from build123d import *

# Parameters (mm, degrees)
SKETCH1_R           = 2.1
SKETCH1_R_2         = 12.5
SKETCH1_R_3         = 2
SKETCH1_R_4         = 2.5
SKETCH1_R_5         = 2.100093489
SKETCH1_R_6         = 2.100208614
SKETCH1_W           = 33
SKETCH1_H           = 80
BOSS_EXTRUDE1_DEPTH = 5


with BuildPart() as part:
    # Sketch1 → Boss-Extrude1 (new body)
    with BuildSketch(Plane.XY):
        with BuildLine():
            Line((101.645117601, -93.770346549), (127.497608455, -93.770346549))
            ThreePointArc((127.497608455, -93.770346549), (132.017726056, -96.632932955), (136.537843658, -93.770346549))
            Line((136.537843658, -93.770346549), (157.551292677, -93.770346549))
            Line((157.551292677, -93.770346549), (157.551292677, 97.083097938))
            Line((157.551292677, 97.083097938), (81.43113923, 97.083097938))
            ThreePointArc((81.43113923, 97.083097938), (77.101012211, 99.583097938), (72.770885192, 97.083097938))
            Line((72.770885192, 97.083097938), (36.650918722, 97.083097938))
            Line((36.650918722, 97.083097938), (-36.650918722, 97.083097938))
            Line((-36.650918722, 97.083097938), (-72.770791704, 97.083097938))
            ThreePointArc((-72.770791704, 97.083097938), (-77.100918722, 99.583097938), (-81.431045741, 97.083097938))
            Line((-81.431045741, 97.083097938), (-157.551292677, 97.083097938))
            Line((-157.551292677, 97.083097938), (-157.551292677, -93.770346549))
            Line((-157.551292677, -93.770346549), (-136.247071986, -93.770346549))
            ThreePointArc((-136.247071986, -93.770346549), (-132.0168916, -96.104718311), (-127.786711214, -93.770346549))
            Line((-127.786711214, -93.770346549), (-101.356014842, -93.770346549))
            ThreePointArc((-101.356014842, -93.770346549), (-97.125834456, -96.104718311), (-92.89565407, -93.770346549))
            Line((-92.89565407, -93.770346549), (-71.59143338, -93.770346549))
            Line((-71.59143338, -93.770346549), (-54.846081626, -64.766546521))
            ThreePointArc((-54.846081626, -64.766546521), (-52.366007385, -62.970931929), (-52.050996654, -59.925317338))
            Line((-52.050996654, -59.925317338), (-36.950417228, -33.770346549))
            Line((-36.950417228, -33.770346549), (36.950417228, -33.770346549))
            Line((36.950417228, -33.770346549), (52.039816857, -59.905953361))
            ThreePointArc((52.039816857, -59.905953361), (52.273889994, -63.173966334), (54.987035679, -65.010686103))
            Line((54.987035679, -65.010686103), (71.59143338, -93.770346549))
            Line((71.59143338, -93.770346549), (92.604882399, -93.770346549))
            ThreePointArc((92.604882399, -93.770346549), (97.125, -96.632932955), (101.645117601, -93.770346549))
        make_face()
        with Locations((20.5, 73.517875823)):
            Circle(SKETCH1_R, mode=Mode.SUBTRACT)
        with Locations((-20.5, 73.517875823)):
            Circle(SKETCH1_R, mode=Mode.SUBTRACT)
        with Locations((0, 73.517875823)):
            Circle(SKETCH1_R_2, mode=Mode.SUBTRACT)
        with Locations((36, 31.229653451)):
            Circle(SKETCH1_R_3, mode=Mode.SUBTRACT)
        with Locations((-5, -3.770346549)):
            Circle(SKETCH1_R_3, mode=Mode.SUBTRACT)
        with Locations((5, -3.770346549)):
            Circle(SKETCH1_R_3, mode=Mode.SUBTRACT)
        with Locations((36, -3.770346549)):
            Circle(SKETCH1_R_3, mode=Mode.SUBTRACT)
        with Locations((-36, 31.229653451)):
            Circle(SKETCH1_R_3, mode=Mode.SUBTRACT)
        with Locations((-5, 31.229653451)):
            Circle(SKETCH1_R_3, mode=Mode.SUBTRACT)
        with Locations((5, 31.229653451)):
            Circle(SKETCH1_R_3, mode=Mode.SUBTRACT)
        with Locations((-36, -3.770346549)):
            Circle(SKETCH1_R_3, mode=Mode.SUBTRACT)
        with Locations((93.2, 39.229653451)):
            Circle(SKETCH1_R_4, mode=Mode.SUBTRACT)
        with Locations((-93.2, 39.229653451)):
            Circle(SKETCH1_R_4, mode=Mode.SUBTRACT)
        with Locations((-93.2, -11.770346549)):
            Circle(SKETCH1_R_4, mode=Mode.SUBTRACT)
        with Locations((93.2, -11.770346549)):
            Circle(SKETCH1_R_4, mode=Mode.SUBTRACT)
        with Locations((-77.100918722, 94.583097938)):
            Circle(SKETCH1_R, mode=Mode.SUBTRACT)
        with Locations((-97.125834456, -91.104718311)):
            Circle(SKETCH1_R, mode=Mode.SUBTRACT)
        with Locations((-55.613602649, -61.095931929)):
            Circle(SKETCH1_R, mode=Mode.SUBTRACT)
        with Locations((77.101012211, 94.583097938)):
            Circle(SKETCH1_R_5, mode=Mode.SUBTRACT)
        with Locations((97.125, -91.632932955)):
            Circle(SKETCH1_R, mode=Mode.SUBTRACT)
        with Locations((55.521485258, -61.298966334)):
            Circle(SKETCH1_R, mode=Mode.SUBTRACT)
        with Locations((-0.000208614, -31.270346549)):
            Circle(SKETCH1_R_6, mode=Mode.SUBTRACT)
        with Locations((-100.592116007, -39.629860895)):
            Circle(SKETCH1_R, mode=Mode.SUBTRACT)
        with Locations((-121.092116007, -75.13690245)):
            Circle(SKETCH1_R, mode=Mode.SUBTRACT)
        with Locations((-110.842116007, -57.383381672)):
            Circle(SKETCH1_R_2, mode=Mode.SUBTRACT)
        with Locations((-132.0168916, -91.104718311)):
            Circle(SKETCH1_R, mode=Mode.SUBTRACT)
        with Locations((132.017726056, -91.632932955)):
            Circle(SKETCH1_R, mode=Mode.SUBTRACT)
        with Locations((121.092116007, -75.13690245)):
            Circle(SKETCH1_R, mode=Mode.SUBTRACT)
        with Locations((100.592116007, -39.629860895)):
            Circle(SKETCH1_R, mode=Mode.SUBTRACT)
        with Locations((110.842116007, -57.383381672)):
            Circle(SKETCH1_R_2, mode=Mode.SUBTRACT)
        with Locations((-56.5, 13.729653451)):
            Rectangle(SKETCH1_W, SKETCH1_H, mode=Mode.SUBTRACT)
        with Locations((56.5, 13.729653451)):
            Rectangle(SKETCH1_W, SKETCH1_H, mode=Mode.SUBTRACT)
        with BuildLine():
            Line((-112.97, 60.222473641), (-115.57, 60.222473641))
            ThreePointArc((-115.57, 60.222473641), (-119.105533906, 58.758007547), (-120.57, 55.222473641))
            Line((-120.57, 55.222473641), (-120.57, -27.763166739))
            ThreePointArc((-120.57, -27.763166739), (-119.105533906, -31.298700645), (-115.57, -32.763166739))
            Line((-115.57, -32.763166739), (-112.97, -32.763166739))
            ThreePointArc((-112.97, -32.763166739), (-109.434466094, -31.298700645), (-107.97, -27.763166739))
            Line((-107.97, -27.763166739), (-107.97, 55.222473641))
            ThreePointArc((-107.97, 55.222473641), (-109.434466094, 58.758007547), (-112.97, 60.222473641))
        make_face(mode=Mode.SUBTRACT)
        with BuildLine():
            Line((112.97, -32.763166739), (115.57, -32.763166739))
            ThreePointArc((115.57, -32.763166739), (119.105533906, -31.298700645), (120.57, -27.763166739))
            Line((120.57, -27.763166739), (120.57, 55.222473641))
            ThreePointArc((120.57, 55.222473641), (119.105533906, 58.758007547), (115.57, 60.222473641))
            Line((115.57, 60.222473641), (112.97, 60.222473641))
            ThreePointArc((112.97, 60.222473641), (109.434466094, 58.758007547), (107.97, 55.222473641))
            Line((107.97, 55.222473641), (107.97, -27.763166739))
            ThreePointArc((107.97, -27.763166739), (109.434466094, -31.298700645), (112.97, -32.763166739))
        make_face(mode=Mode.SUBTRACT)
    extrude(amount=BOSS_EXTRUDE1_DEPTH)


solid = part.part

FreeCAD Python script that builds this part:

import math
import FreeCAD as App
import Part
import Sketcher
Q = App.Units.Quantity


def add_polygon(sketch, points):
    """Adds a closed chain of lines whose ends are joined by coincident constraints."""
    first, n = sketch.GeometryCount, len(points)
    for a, b in zip(points, points[1:] + points[:1]):
        sketch.addGeometry(Part.LineSegment(App.Vector(*a, 0), App.Vector(*b, 0)), False)
    for i in range(n):
        sketch.addConstraint(Sketcher.Constraint("Coincident", first + i, 2, first + (i + 1) % n, 1))

doc = App.newDocument("Part")
body = doc.addObject("PartDesign::Body", "Body")

# Sketch on XY plane
sketch1 = body.newObject("Sketcher::SketchObject", "Sketch")
sketch1.AttachmentSupport = (doc.getObject("XY_Plane"), [""])
sketch1.MapMode = "FlatFace"
sketch1.addGeometry(Part.LineSegment(App.Vector(101.645118, -93.770347, 0), App.Vector(127.497608, -93.770347, 0)), False)  # 0
sketch1.addGeometry(Part.ArcOfCircle(Part.Circle(App.Vector(132.017726, -91.632933, 0), App.Vector(0, 0, 1), 5), math.radians(-154.692087), math.radians(-25.307913)), False)  # 1
sketch1.addGeometry(Part.LineSegment(App.Vector(136.537844, -93.770347, 0), App.Vector(157.551293, -93.770347, 0)), False)  # 2
sketch1.addGeometry(Part.LineSegment(App.Vector(157.551293, -93.770347, 0), App.Vector(157.551293, 97.083098, 0)), False)  # 3
sketch1.addGeometry(Part.LineSegment(App.Vector(157.551293, 97.083098, 0), App.Vector(81.431139, 97.083098, 0)), False)  # 4
sketch1.addGeometry(Part.ArcOfCircle(Part.Circle(App.Vector(77.101012, 94.583098, 0), App.Vector(0, 0, 1), 5), math.radians(30), math.radians(150)), False)  # 5
sketch1.addGeometry(Part.LineSegment(App.Vector(72.770885, 97.083098, 0), App.Vector(-72.770792, 97.083098, 0)), False)  # 6
sketch1.addGeometry(Part.ArcOfCircle(Part.Circle(App.Vector(-77.100919, 94.583098, 0), App.Vector(0, 0, 1), 5), math.radians(30), math.radians(150)), False)  # 7
sketch1.addGeometry(Part.LineSegment(App.Vector(-81.431046, 97.083098, 0), App.Vector(-157.551293, 97.083098, 0)), False)  # 8
sketch1.addGeometry(Part.LineSegment(App.Vector(-157.551293, 97.083098, 0), App.Vector(-157.551293, -93.770347, 0)), False)  # 9
sketch1.addGeometry(Part.LineSegment(App.Vector(-157.551293, -93.770347, 0), App.Vector(-136.247072, -93.770347, 0)), False)  # 10
sketch1.addGeometry(Part.ArcOfCircle(Part.Circle(App.Vector(-132.016892, -91.104718, 0), App.Vector(0, 0, 1), 5), math.radians(-147.783113), math.radians(-32.216887)), False)  # 11
sketch1.addGeometry(Part.LineSegment(App.Vector(-127.786711, -93.770347, 0), App.Vector(-101.356015, -93.770347, 0)), False)  # 12
sketch1.addGeometry(Part.ArcOfCircle(Part.Circle(App.Vector(-97.125834, -91.104718, 0), App.Vector(0, 0, 1), 5), math.radians(-147.783113), math.radians(-32.216887)), False)  # 13
sketch1.addGeometry(Part.LineSegment(App.Vector(-92.895654, -93.770347, 0), App.Vector(-71.591433, -93.770347, 0)), False)  # 14
sketch1.addGeometry(Part.LineSegment(App.Vector(-71.591433, -93.770347, 0), App.Vector(-54.846082, -64.766547, 0)), False)  # 15
sketch1.addGeometry(Part.ArcOfCircle(Part.Circle(App.Vector(-55.613603, -61.095932, 0), App.Vector(0, 0, 1), 3.75), math.radians(-78.189685), math.radians(18.189685)), False)  # 16
sketch1.addGeometry(Part.LineSegment(App.Vector(-52.050997, -59.925317, 0), App.Vector(-36.950417, -33.770347, 0)), False)  # 17
sketch1.addGeometry(Part.LineSegment(App.Vector(-36.950417, -33.770347, 0), App.Vector(36.950417, -33.770347, 0)), False)  # 18
sketch1.addGeometry(Part.LineSegment(App.Vector(36.950417, -33.770347, 0), App.Vector(52.039817, -59.905953, 0)), False)  # 19
sketch1.addGeometry(Part.ArcOfCircle(Part.Circle(App.Vector(55.521485, -61.298966, 0), App.Vector(0, 0, 1), 3.75), math.radians(158.193688), math.radians(261.806312)), False)  # 20
sketch1.addGeometry(Part.LineSegment(App.Vector(54.987036, -65.010686, 0), App.Vector(71.591433, -93.770347, 0)), False)  # 21
sketch1.addGeometry(Part.LineSegment(App.Vector(71.591433, -93.770347, 0), App.Vector(92.604882, -93.770347, 0)), False)  # 22
sketch1.addGeometry(Part.ArcOfCircle(Part.Circle(App.Vector(97.125, -91.632933, 0), App.Vector(0, 0, 1), 5), math.radians(-154.692087), math.radians(-25.307913)), False)  # 23
sketch1.addGeometry(Part.Circle(App.Vector(-132.016892, -91.104718, 0), App.Vector(0, 0, 1), 2.1), False)  # 24
sketch1.addGeometry(Part.Circle(App.Vector(-121.092116, -75.136902, 0), App.Vector(0, 0, 1), 2.1), False)  # 25
sketch1.addGeometry(Part.Circle(App.Vector(-97.125834, -91.104718, 0), App.Vector(0, 0, 1), 2.1), False)  # 26
sketch1.addGeometry(Part.Circle(App.Vector(-110.842116, -57.383382, 0), App.Vector(0, 0, 1), 12.5), False)  # 27
sketch1.addGeometry(Part.Circle(App.Vector(-55.613603, -61.095932, 0), App.Vector(0, 0, 1), 2.1), False)  # 28
sketch1.addGeometry(Part.Circle(App.Vector(-100.592116, -39.629861, 0), App.Vector(0, 0, 1), 2.1), False)  # 29
sketch1.addGeometry(Part.Circle(App.Vector(-93.2, -11.770347, 0), App.Vector(0, 0, 1), 2.5), False)  # 30
sketch1.addGeometry(Part.Circle(App.Vector(-0.000209, -31.270347, 0), App.Vector(0, 0, 1), 2.100209), False)  # 31
sketch1.addGeometry(Part.Circle(App.Vector(-36, -3.770347, 0), App.Vector(0, 0, 1), 2), False)  # 32
sketch1.addGeometry(Part.Circle(App.Vector(-5, -3.770347, 0), App.Vector(0, 0, 1), 2), False)  # 33
sketch1.addGeometry(Part.Circle(App.Vector(55.521485, -61.298966, 0), App.Vector(0, 0, 1), 2.1), False)  # 34
sketch1.addGeometry(Part.Circle(App.Vector(97.125, -91.632933, 0), App.Vector(0, 0, 1), 2.1), False)  # 35
sketch1.addGeometry(Part.Circle(App.Vector(132.017726, -91.632933, 0), App.Vector(0, 0, 1), 2.1), False)  # 36
sketch1.addGeometry(Part.Circle(App.Vector(121.092116, -75.136902, 0), App.Vector(0, 0, 1), 2.1), False)  # 37
sketch1.addGeometry(Part.Circle(App.Vector(110.842116, -57.383382, 0), App.Vector(0, 0, 1), 12.5), False)  # 38
sketch1.addGeometry(Part.Circle(App.Vector(5, -3.770347, 0), App.Vector(0, 0, 1), 2), False)  # 39
sketch1.addGeometry(Part.Circle(App.Vector(36, -3.770347, 0), App.Vector(0, 0, 1), 2), False)  # 40
sketch1.addGeometry(Part.Circle(App.Vector(100.592116, -39.629861, 0), App.Vector(0, 0, 1), 2.1), False)  # 41
sketch1.addGeometry(Part.Circle(App.Vector(93.2, -11.770347, 0), App.Vector(0, 0, 1), 2.5), False)  # 42
sketch1.addGeometry(Part.LineSegment(App.Vector(-115.57, 60.222474, 0), App.Vector(-112.97, 60.222474, 0)), False)  # 43
sketch1.addGeometry(Part.ArcOfCircle(Part.Circle(App.Vector(-112.97, 55.222474, 0), App.Vector(0, 0, 1), 5), math.radians(0), math.radians(90)), False)  # 44
sketch1.addGeometry(Part.LineSegment(App.Vector(-107.97, 55.222474, 0), App.Vector(-107.97, -27.763167, 0)), False)  # 45
sketch1.addGeometry(Part.ArcOfCircle(Part.Circle(App.Vector(-112.97, -27.763167, 0), App.Vector(0, 0, 1), 5), math.radians(-90), math.radians(0)), False)  # 46
sketch1.addGeometry(Part.LineSegment(App.Vector(-112.97, -32.763167, 0), App.Vector(-115.57, -32.763167, 0)), False)  # 47
sketch1.addGeometry(Part.ArcOfCircle(Part.Circle(App.Vector(-115.57, -27.763167, 0), App.Vector(0, 0, 1), 5), math.radians(180), math.radians(270)), False)  # 48
sketch1.addGeometry(Part.LineSegment(App.Vector(-120.57, -27.763167, 0), App.Vector(-120.57, 55.222474, 0)), False)  # 49
sketch1.addGeometry(Part.ArcOfCircle(Part.Circle(App.Vector(-115.57, 55.222474, 0), App.Vector(0, 0, 1), 5), math.radians(90), math.radians(180)), False)  # 50
sketch1.addGeometry(Part.Circle(App.Vector(-93.2, 39.229653, 0), App.Vector(0, 0, 1), 2.5), False)  # 51
add_polygon(sketch1, [(-40, -26.270347), (-73, -26.270347), (-73, 53.729653), (-40, 53.729653)])  # lines 52-55
sketch1.addGeometry(Part.Circle(App.Vector(-36, 31.229653, 0), App.Vector(0, 0, 1), 2), False)  # 56
sketch1.addGeometry(Part.Circle(App.Vector(-5, 31.229653, 0), App.Vector(0, 0, 1), 2), False)  # 57
sketch1.addGeometry(Part.Circle(App.Vector(-77.100919, 94.583098, 0), App.Vector(0, 0, 1), 2.1), False)  # 58
sketch1.addGeometry(Part.Circle(App.Vector(-20.5, 73.517876, 0), App.Vector(0, 0, 1), 2.1), False)  # 59
sketch1.addGeometry(Part.Circle(App.Vector(0, 73.517876, 0), App.Vector(0, 0, 1), 12.5), False)  # 60
add_polygon(sketch1, [(73, -26.270347), (40, -26.270347), (40, 53.729653), (73, 53.729653)])  # lines 61-64
sketch1.addGeometry(Part.Circle(App.Vector(5, 31.229653, 0), App.Vector(0, 0, 1), 2), False)  # 65
sketch1.addGeometry(Part.Circle(App.Vector(36, 31.229653, 0), App.Vector(0, 0, 1), 2), False)  # 66
sketch1.addGeometry(Part.LineSegment(App.Vector(115.57, -32.763167, 0), App.Vector(112.97, -32.763167, 0)), False)  # 67
sketch1.addGeometry(Part.ArcOfCircle(Part.Circle(App.Vector(112.97, -27.763167, 0), App.Vector(0, 0, 1), 5), math.radians(180), math.radians(270)), False)  # 68
sketch1.addGeometry(Part.LineSegment(App.Vector(107.97, -27.763167, 0), App.Vector(107.97, 55.222474, 0)), False)  # 69
sketch1.addGeometry(Part.ArcOfCircle(Part.Circle(App.Vector(112.97, 55.222474, 0), App.Vector(0, 0, 1), 5), math.radians(90), math.radians(180)), False)  # 70
sketch1.addGeometry(Part.LineSegment(App.Vector(112.97, 60.222474, 0), App.Vector(115.57, 60.222474, 0)), False)  # 71
sketch1.addGeometry(Part.ArcOfCircle(Part.Circle(App.Vector(115.57, 55.222474, 0), App.Vector(0, 0, 1), 5), math.radians(0), math.radians(90)), False)  # 72
sketch1.addGeometry(Part.LineSegment(App.Vector(120.57, 55.222474, 0), App.Vector(120.57, -27.763167, 0)), False)  # 73
sketch1.addGeometry(Part.ArcOfCircle(Part.Circle(App.Vector(115.57, -27.763167, 0), App.Vector(0, 0, 1), 5), math.radians(-90), math.radians(0)), False)  # 74
sketch1.addGeometry(Part.Circle(App.Vector(93.2, 39.229653, 0), App.Vector(0, 0, 1), 2.5), False)  # 75
sketch1.addGeometry(Part.Circle(App.Vector(20.5, 73.517876, 0), App.Vector(0, 0, 1), 2.1), False)  # 76
sketch1.addGeometry(Part.Circle(App.Vector(77.101012, 94.583098, 0), App.Vector(0, 0, 1), 2.100093), False)  # 77
sketch1.addConstraint([
    Sketcher.Constraint("Coincident", 0, 2, 1, 1),
    Sketcher.Constraint("Coincident", 1, 2, 2, 1),
    Sketcher.Constraint("Coincident", 2, 2, 3, 1),
    Sketcher.Constraint("Coincident", 3, 2, 4, 1),
    Sketcher.Constraint("Coincident", 4, 2, 5, 1),
    Sketcher.Constraint("Coincident", 5, 2, 6, 1),
    Sketcher.Constraint("Coincident", 6, 2, 7, 1),
    Sketcher.Constraint("Coincident", 7, 2, 8, 1),
    Sketcher.Constraint("Coincident", 8, 2, 9, 1),
    Sketcher.Constraint("Coincident", 9, 2, 10, 1),
    Sketcher.Constraint("Coincident", 10, 2, 11, 1),
    Sketcher.Constraint("Coincident", 11, 2, 12, 1),
    Sketcher.Constraint("Coincident", 12, 2, 13, 1),
    Sketcher.Constraint("Coincident", 13, 2, 14, 1),
    Sketcher.Constraint("Coincident", 14, 2, 15, 1),
    Sketcher.Constraint("Coincident", 15, 2, 16, 1),
    Sketcher.Constraint("Coincident", 16, 2, 17, 1),
    Sketcher.Constraint("Coincident", 17, 2, 18, 1),
    Sketcher.Constraint("Coincident", 18, 2, 19, 1),
    Sketcher.Constraint("Coincident", 19, 2, 20, 1),
    Sketcher.Constraint("Coincident", 20, 2, 21, 1),
    Sketcher.Constraint("Coincident", 21, 2, 22, 1),
    Sketcher.Constraint("Coincident", 22, 2, 23, 1),
    Sketcher.Constraint("Coincident", 23, 2, 0, 1),
    Sketcher.Constraint("Tangent", 43, 2, 44, 2),
    Sketcher.Constraint("Tangent", 44, 1, 45, 1),
    Sketcher.Constraint("Tangent", 45, 2, 46, 2),
    Sketcher.Constraint("Tangent", 46, 1, 47, 1),
    Sketcher.Constraint("Tangent", 47, 2, 48, 2),
    Sketcher.Constraint("Tangent", 48, 1, 49, 1),
    Sketcher.Constraint("Tangent", 49, 2, 50, 2),
    Sketcher.Constraint("Tangent", 50, 1, 43, 1),
    Sketcher.Constraint("Tangent", 67, 2, 68, 2),
    Sketcher.Constraint("Tangent", 68, 1, 69, 1),
    Sketcher.Constraint("Tangent", 69, 2, 70, 2),
    Sketcher.Constraint("Tangent", 70, 1, 71, 1),
    Sketcher.Constraint("Tangent", 71, 2, 72, 2),
    Sketcher.Constraint("Tangent", 72, 1, 73, 1),
    Sketcher.Constraint("Tangent", 73, 2, 74, 2),
    Sketcher.Constraint("Tangent", 74, 1, 67, 1),
    Sketcher.Constraint("Horizontal", 0),
    Sketcher.Constraint("Horizontal", 2),
    Sketcher.Constraint("Vertical", 3),
    Sketcher.Constraint("Horizontal", 4),
    Sketcher.Constraint("Horizontal", 6),
    Sketcher.Constraint("Horizontal", 8),
    Sketcher.Constraint("Vertical", 9),
    Sketcher.Constraint("Horizontal", 10),
    Sketcher.Constraint("Horizontal", 12),
    Sketcher.Constraint("Horizontal", 14),
    Sketcher.Constraint("Horizontal", 18),
    Sketcher.Constraint("Horizontal", 22),
    Sketcher.Constraint("Horizontal", 43),
    Sketcher.Constraint("Vertical", 45),
    Sketcher.Constraint("Horizontal", 47),
    Sketcher.Constraint("Vertical", 49),
    Sketcher.Constraint("Horizontal", 52),
    Sketcher.Constraint("Vertical", 53),
    Sketcher.Constraint("Horizontal", 54),
    Sketcher.Constraint("Vertical", 55),
    Sketcher.Constraint("Horizontal", 61),
    Sketcher.Constraint("Vertical", 62),
    Sketcher.Constraint("Horizontal", 63),
    Sketcher.Constraint("Vertical", 64),
    Sketcher.Constraint("Horizontal", 67),
    Sketcher.Constraint("Vertical", 69),
    Sketcher.Constraint("Horizontal", 71),
    Sketcher.Constraint("Vertical", 73),
    Sketcher.Constraint("Coincident", 24, 3, 11, 3),
    Sketcher.Constraint("Coincident", 26, 3, 13, 3),
    Sketcher.Constraint("Coincident", 28, 3, 16, 3),
    Sketcher.Constraint("Coincident", 34, 3, 20, 3),
    Sketcher.Constraint("Coincident", 35, 3, 23, 3),
    Sketcher.Constraint("Coincident", 36, 3, 1, 3),
    Sketcher.Constraint("Coincident", 58, 3, 7, 3),
    Sketcher.Constraint("Coincident", 77, 3, 5, 3),
    Sketcher.Constraint("Equal", 1, 5),
    Sketcher.Constraint("Equal", 5, 7),
    Sketcher.Constraint("Equal", 7, 11),
    Sketcher.Constraint("Equal", 11, 13),
    Sketcher.Constraint("Equal", 16, 20),
    Sketcher.Constraint("Equal", 13, 23),
    Sketcher.Constraint("Equal", 24, 25),
    Sketcher.Constraint("Equal", 25, 26),
    Sketcher.Constraint("Equal", 26, 28),
    Sketcher.Constraint("Equal", 28, 29),
    Sketcher.Constraint("Equal", 32, 33),
    Sketcher.Constraint("Equal", 29, 34),
    Sketcher.Constraint("Equal", 34, 35),
    Sketcher.Constraint("Equal", 35, 36),
    Sketcher.Constraint("Equal", 36, 37),
    Sketcher.Constraint("Equal", 27, 38),
    Sketcher.Constraint("Equal", 33, 39),
    Sketcher.Constraint("Equal", 39, 40),
    Sketcher.Constraint("Equal", 37, 41),
    Sketcher.Constraint("Equal", 30, 42),
    Sketcher.Constraint("Equal", 23, 44),
    Sketcher.Constraint("Equal", 44, 46),
    Sketcher.Constraint("Equal", 46, 48),
    Sketcher.Constraint("Equal", 48, 50),
    Sketcher.Constraint("Equal", 42, 51),
    Sketcher.Constraint("Equal", 40, 56),
    Sketcher.Constraint("Equal", 56, 57),
    Sketcher.Constraint("Equal", 41, 58),
    Sketcher.Constraint("Equal", 58, 59),
    Sketcher.Constraint("Equal", 38, 60),
    Sketcher.Constraint("Equal", 57, 65),
    Sketcher.Constraint("Equal", 65, 66),
    Sketcher.Constraint("Equal", 50, 68),
    Sketcher.Constraint("Equal", 68, 70),
    Sketcher.Constraint("Equal", 70, 72),
    Sketcher.Constraint("Equal", 72, 74),
    Sketcher.Constraint("Equal", 51, 75),
    Sketcher.Constraint("Equal", 59, 76),
    Sketcher.Constraint("Symmetric", 25, 3, 37, 3, -2),
    Sketcher.Constraint("Symmetric", 27, 3, 38, 3, -2),
    Sketcher.Constraint("Symmetric", 33, 3, 39, 3, -2),
    Sketcher.Constraint("Symmetric", 32, 3, 40, 3, -2),
    Sketcher.Constraint("Symmetric", 29, 3, 41, 3, -2),
    Sketcher.Constraint("Symmetric", 30, 3, 42, 3, -2),
    Sketcher.Constraint("Symmetric", 57, 3, 65, 3, -2),
    Sketcher.Constraint("Symmetric", 56, 3, 66, 3, -2),
    Sketcher.Constraint("Symmetric", 46, 3, 68, 3, -2),
    Sketcher.Constraint("Symmetric", 50, 3, 72, 3, -2),
    Sketcher.Constraint("Symmetric", 51, 3, 75, 3, -2),
    Sketcher.Constraint("Symmetric", 59, 3, 76, 3, -2),
    Sketcher.Constraint("Symmetric", 3, 2, 8, 2, -2),
    Sketcher.Constraint("Symmetric", 14, 2, 21, 2, -2),
    Sketcher.Constraint("Symmetric", 55, 2, 61, 2, -2),
    Sketcher.Constraint("Symmetric", 53, 2, 63, 2, -2),
    Sketcher.Constraint("PointOnObject", 60, 3, -2),
    Sketcher.Constraint("Parallel", 15, 17),
    Sketcher.Constraint("Parallel", 19, 21),
    Sketcher.Constraint("Horizontal", 5, 3, 7, 3),
    Sketcher.Constraint("Horizontal", 11, 3, 13, 3),
    Sketcher.Constraint("Horizontal", 1, 3, 23, 3),
    Sketcher.Constraint("Horizontal", 32, 3, 33, 3),
    Sketcher.Constraint("Horizontal", 56, 3, 57, 3),
    Sketcher.Constraint("Horizontal", 59, 3, 60, 3),
    Sketcher.Constraint("Horizontal", 0, 2, 1, 2),
    Sketcher.Constraint("Horizontal", 4, 2, 5, 2),
    Sketcher.Constraint("Horizontal", 2, 2, 9, 2),
    Sketcher.Constraint("Horizontal", 10, 2, 11, 2),
    Sketcher.Constraint("Horizontal", 12, 2, 13, 2),
    Sketcher.Constraint("Vertical", 30, 3, 51, 3),
    Sketcher.Constraint("Vertical", 32, 3, 56, 3),
    Sketcher.Constraint("Vertical", 33, 3, 57, 3),
    Sketcher.Constraint("Equal", 10, 14),
    Sketcher.Constraint("Equal", 2, 22),
    Sketcher.Constraint("Diameter", 27, 25.0),
    Sketcher.Constraint("Diameter", 30, 5.0),
    Sketcher.Constraint("Diameter", 32, 4.0),
    Sketcher.Constraint("Radius", 1, 5.0),
    Sketcher.Constraint("Diameter", 24, 4.2),
    Sketcher.Constraint("DistanceX", 52, 2, 52, 1, 33.0),
    Sketcher.Constraint("DistanceY", 53, 1, 53, 2, 80.0),
    Sketcher.Constraint("Angle", 15, Q("60 deg")),
    Sketcher.Constraint("Angle", 19, Q("-60 deg")),
    Sketcher.Constraint("Radius", 16, 3.75),
    Sketcher.Constraint("DistanceX", 43, 1, 43, 2, 2.6),
    Sketcher.Constraint("DistanceX", 32, 3, -1, 1, 36.0),
    Sketcher.Constraint("DistanceX", 33, 3, -1, 1, 5.0),
    Sketcher.Constraint("DistanceX", 52, 2, -1, 1, 73.0),
    Sketcher.Constraint("DistanceX", 30, 3, -1, 1, 93.2),
    Sketcher.Constraint("DistanceX", 59, 3, -1, 1, 20.5),
    Sketcher.Constraint("DistanceX", 44, 3, -1, 1, 112.97),
    Sketcher.Constraint("Diameter", 31, 4.200417),
    Sketcher.Constraint("Diameter", 77, 4.200187),
    Sketcher.Constraint("DistanceX", -1, 1, 23, 3, 97.125),
    Sketcher.Constraint("Distance", 19, 30.178799),
    Sketcher.Constraint("DistanceX", 0, 1, 0, 2, 25.852491),
    Sketcher.Constraint("DistanceX", 2, 1, 2, 2, 21.013449),
    Sketcher.Constraint("DistanceX", 10, 1, 10, 2, 21.304221),
    Sketcher.Constraint("DistanceY", 45, 2, 45, 1, 82.98564),
    Sketcher.Constraint("Distance", 17, 30.201159),
    Sketcher.Constraint("DistanceX", 4, 2, 4, 1, 76.120153),
    Sketcher.Constraint("DistanceX", 6, 2, 6, 1, 145.541677),
    Sketcher.Constraint("DistanceX", 8, 2, 8, 1, 76.120247),
    Sketcher.Constraint("DistanceX", 12, 1, 12, 2, 26.430696),
    Sketcher.Constraint("DistanceX", 18, 1, 18, 2, 73.900834),
    Sketcher.Constraint("DistanceY", 3, 1, 3, 2, 190.853444),
    Sketcher.Constraint("DistanceX", 7, 3, -1, 1, 77.100919),
    Sketcher.Constraint("DistanceY", 11, 3, -1, 1, 91.104718),
    Sketcher.Constraint("DistanceY", 16, 3, -1, 1, 61.095932),
    Sketcher.Constraint("DistanceY", 27, 3, -1, 1, 57.383382),
    Sketcher.Constraint("DistanceY", 29, 3, -1, 1, 39.629861),
    Sketcher.Constraint("DistanceX", 31, 3, -1, 1, 0.000209),
    Sketcher.Constraint("DistanceX", 15, 2, -1, 1, 54.846082),
    Sketcher.Constraint("Distance", 21, 33.208795),
    Sketcher.Constraint("DistanceX", -1, 1, 20, 3, 55.521485),
    Sketcher.Constraint("DistanceX", 25, 3, -1, 1, 121.092116),
    Sketcher.Constraint("DistanceY", 25, 3, -1, 1, 75.136902),
    Sketcher.Constraint("DistanceX", 27, 3, -1, 1, 110.842116),
    Sketcher.Constraint("DistanceX", 29, 3, -1, 1, 100.592116),
    Sketcher.Constraint("DistanceY", 30, 3, -1, 1, 11.770347),
    Sketcher.Constraint("DistanceY", 31, 3, -1, 1, 31.270347),
    Sketcher.Constraint("DistanceY", 32, 3, -1, 1, 3.770347),
    Sketcher.Constraint("DistanceY", -1, 1, 44, 3, 55.222474),
    Sketcher.Constraint("DistanceY", -1, 1, 51, 3, 39.229653),
    Sketcher.Constraint("DistanceY", -1, 1, 56, 3, 31.229653),
    Sketcher.Constraint("DistanceY", -1, 1, 59, 3, 73.517876),
    Sketcher.Constraint("DistanceY", 52, 2, -1, 1, 26.270347),
])
pad1 = body.newObject("PartDesign::Pad", "Pad")
pad1.Profile = sketch1
pad1.Length = 5

doc.recompute()
